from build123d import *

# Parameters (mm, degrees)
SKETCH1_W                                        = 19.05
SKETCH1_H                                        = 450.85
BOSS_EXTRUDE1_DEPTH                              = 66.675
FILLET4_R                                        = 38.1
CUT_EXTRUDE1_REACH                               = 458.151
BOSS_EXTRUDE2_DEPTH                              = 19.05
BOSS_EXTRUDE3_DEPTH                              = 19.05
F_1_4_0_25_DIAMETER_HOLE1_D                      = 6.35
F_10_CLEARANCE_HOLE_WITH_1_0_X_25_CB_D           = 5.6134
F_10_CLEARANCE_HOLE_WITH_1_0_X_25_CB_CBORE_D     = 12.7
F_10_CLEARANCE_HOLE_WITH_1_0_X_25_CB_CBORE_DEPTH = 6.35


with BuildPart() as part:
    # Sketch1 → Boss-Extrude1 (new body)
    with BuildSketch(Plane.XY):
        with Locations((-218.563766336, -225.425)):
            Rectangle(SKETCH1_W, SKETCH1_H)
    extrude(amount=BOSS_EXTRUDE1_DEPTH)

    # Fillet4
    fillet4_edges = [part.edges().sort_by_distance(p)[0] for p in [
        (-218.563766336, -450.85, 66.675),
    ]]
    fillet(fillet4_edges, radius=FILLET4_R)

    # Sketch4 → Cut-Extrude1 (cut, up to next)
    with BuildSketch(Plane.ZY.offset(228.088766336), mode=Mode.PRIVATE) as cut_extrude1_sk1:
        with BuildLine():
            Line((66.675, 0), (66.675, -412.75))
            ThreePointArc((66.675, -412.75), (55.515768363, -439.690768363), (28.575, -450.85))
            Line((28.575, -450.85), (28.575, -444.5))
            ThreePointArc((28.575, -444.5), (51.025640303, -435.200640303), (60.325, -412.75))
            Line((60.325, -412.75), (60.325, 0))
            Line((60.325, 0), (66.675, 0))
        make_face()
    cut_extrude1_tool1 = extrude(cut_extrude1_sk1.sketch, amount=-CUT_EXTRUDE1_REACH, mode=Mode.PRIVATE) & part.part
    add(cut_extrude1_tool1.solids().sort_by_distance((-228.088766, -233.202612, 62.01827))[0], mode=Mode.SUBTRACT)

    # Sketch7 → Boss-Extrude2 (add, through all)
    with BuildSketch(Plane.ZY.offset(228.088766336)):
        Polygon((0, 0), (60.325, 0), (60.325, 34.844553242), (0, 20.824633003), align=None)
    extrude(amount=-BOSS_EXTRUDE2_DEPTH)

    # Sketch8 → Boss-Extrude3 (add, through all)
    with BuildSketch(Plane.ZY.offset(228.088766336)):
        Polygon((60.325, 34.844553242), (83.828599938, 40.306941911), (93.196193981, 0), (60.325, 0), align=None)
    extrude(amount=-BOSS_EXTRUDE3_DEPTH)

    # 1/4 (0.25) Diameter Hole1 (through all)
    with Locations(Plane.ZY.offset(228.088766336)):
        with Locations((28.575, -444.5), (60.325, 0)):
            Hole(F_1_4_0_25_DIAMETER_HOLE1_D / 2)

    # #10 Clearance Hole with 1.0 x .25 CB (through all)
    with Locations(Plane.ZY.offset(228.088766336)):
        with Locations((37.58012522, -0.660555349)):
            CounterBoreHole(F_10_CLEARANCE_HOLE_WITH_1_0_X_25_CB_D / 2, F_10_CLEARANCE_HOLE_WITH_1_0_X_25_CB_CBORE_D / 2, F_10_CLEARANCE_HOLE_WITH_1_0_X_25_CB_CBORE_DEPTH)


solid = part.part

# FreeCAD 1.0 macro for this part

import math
import FreeCAD as App
import Part
import Sketcher
from FreeCAD import Vector
Q = App.Units.Quantity


def edges_at(feature, points):
    """Names of the edges that pass closest to the given points."""
    edges = feature.Shape.Edges
    near = lambda p: min(range(len(edges)), key=lambda i: edges[i].distToShape(Part.Vertex(*p))[0])
    return sorted({f"Edge{near(p) + 1}" for p in points})


def add_polygon(sketch, points):
    """Adds a closed chain of lines whose ends are joined by coincident constraints."""
    first, n = sketch.GeometryCount, len(points)
    for a, b in zip(points, points[1:] + points[:1]):
        sketch.addGeometry(Part.LineSegment(App.Vector(*a, 0), App.Vector(*b, 0)), False)
    for i in range(n):
        sketch.addConstraint(Sketcher.Constraint("Coincident", first + i, 2, first + (i + 1) % n, 1))

doc = App.newDocument("Part")
body = doc.addObject("PartDesign::Body", "Body")

# Sketch on XY plane
sketch1 = body.newObject("Sketcher::SketchObject", "Sketch")
sketch1.AttachmentSupport = (doc.getObject("XY_Plane"), [""])
sketch1.MapMode = "FlatFace"
add_polygon(sketch1, [(-228.088766, 0), (-228.088766, -450.85), (-209.038766, -450.85), (-209.038766, 0)])  # lines 0-3
sketch1.addConstraint([
    Sketcher.Constraint("Vertical", 0),
    Sketcher.Constraint("Horizontal", 1),
    Sketcher.Constraint("Vertical", 2),
    Sketcher.Constraint("Horizontal", 3),
    Sketcher.Constraint("PointOnObject", 2, 2, -1),
    Sketcher.Constraint("DistanceX", 1, 1, 1, 2, Q("0.75 in")),
    Sketcher.Constraint("DistanceY", 0, 2, 0, 1, Q("17.75 in")),
    Sketcher.Constraint("DistanceX", 0, 2, -1, 1, Q("228.088766 mm")),
])
pad1 = body.newObject("PartDesign::Pad", "Pad")
pad1.Profile = sketch1
pad1.Length = Q("2.625 in")
doc.recompute()

fillet = body.newObject("PartDesign::Fillet", "Fillet")
fillet.Base = (pad1, edges_at(pad1, [(-218.564, -450.85, 66.675)]))
fillet.Radius = Q("1.5 in")

# Sketch on YZ plane
sketch2 = body.newObject("Sketcher::SketchObject", "Sketch001")
sketch2.AttachmentSupport = (doc.getObject("YZ_Plane"), [""])
sketch2.MapMode = "FlatFace"
sketch2.AttachmentOffset = App.Placement(Vector(0, 0, -228.088766), App.Rotation())
sketch2.addGeometry([
    Part.LineSegment(Vector(-412.75, 66.675, 0), Vector(0, 66.675, 0)),  # 0
    Part.LineSegment(Vector(0, 66.675, 0), Vector(0, 60.325, 0)),  # 1
    Part.LineSegment(Vector(0, 60.325, 0), Vector(-412.75, 60.325, 0)),  # 2
    Part.ArcOfCircle(Part.Circle(Vector(-412.75, 28.575, 0), Vector(0, 0, 1), 31.75), math.radians(90), math.radians(180)),  # 3
    Part.LineSegment(Vector(-444.5, 28.575, 0), Vector(-450.85, 28.575, 0)),  # 4
    Part.ArcOfCircle(Part.Circle(Vector(-412.75, 28.575, 0), Vector(0, 0, 1), 38.1), math.radians(90), math.radians(180)),  # 5
], False)
sketch2.addConstraint([
    Sketcher.Constraint("Coincident", 0, 2, 1, 1),
    Sketcher.Constraint("Coincident", 1, 2, 2, 1),
    Sketcher.Constraint("Tangent", 2, 2, 3, 1),
    Sketcher.Constraint("Coincident", 3, 2, 4, 1),
    Sketcher.Constraint("Coincident", 4, 2, 5, 2),
    Sketcher.Constraint("Tangent", 5, 1, 0, 1),
    Sketcher.Constraint("Horizontal", 0),
    Sketcher.Constraint("Vertical", 1),
    Sketcher.Constraint("Horizontal", 2),
    Sketcher.Constraint("Horizontal", 4),
    Sketcher.Constraint("Coincident", 5, 3, 3, 3),
    Sketcher.Constraint("PointOnObject", 0, 2, -2),
    Sketcher.Constraint("Horizontal", 5, 3, 3, 2),
    Sketcher.Constraint("Radius", 5, Q("1.5 in")),
    Sketcher.Constraint("Radius", 3, Q("1.25 in")),
    Sketcher.Constraint("DistanceX", 0, 1, 0, 2, Q("16.25 in")),
    Sketcher.Constraint("DistanceY", -1, 1, 3, 3, Q("1.125 in")),
])
pocket1 = body.newObject("PartDesign::Pocket", "Pocket")
pocket1.Profile = sketch2
pocket1.Type = "UpToFirst"
pocket1.Reversed = True

# Sketch on YZ plane
sketch3 = body.newObject("Sketcher::SketchObject", "Sketch002")
sketch3.AttachmentSupport = (doc.getObject("YZ_Plane"), [""])
sketch3.MapMode = "FlatFace"
sketch3.AttachmentOffset = App.Placement(Vector(0, 0, -228.088766), App.Rotation())
add_polygon(sketch3, [(0, 0), (0, 60.325), (34.844553, 60.325), (20.824633, 0)])  # lines 0-3
sketch3.addConstraint([
    Sketcher.Constraint("Vertical", 0),
    Sketcher.Constraint("Horizontal", 1),
    Sketcher.Constraint("Horizontal", 3),
    Sketcher.Constraint("Coincident", 3, 2, -1, 1),
    Sketcher.Constraint("DistanceY", 0, 1, 0, 2, Q("2.375 in")),
    Sketcher.Constraint("DistanceX", 1, 1, 1, 2, Q("34.844553 mm")),
    Sketcher.Constraint("DistanceX", 3, 2, 3, 1, Q("20.824633 mm")),
])
pad2 = body.newObject("PartDesign::Pad", "Pad001")
pad2.Profile = sketch3
pad2.Length = Q("0.75 in")

# Sketch on YZ plane
sketch4 = body.newObject("Sketcher::SketchObject", "Sketch003")
sketch4.AttachmentSupport = (doc.getObject("YZ_Plane"), [""])
sketch4.MapMode = "FlatFace"
sketch4.AttachmentOffset = App.Placement(Vector(0, 0, -228.088766), App.Rotation())
add_polygon(sketch4, [(40.306942, 83.8286), (34.844553, 60.325), (0, 60.325), (0, 93.196194)])  # lines 0-3
sketch4.addConstraint([
    Sketcher.Constraint("Horizontal", 1),
    Sketcher.Constraint("Vertical", 2),
    Sketcher.Constraint("PointOnObject", 1, 2, -2),
    Sketcher.Constraint("Perpendicular", 0, 3),
    Sketcher.Constraint("Distance", 0, Q("0.95 in")),
    Sketcher.Constraint("DistanceY", -1, 1, 0, 2, Q("2.375 in")),
    Sketcher.Constraint("DistanceY", -1, 1, 3, 2, Q("83.8286 mm")),
    Sketcher.Constraint("Distance", 3, Q("41.381172 mm")),
])
pad3 = body.newObject("PartDesign::Pad", "Pad002")
pad3.Profile = sketch4
pad3.Length = Q("0.75 in")

# Sketch on YZ plane
sketch5 = body.newObject("Sketcher::SketchObject", "Sketch004")
sketch5.AttachmentSupport = (doc.getObject("YZ_Plane"), [""])
sketch5.MapMode = "FlatFace"
sketch5.AttachmentOffset = App.Placement(Vector(0, 0, -228.088766), App.Rotation())
sketch5.addGeometry([
    Part.Circle(Vector(-444.5, 28.575, 0), Vector(0, 0, 1), 3.175),
    Part.Circle(Vector(0, 60.325, 0), Vector(0, 0, 1), 3.175),
], False)
sketch5.addConstraint([
    Sketcher.Constraint("Equal", 0, 1),
    Sketcher.Constraint("PointOnObject", 1, 3, -2),
    Sketcher.Constraint("Diameter", 0, Q("0.25 in")),
    Sketcher.Constraint("DistanceX", 0, 3, -1, 1, Q("17.5 in")),
    Sketcher.Constraint("DistanceY", 0, 3, 1, 3, Q("1.25 in")),
    Sketcher.Constraint("DistanceY", -1, 1, 0, 3, Q("1.125 in")),
])
doc.recompute()
hole = body.newObject("PartDesign::Hole", "Hole")
hole.Profile = sketch5
hole.ThreadType = "None"
hole.Diameter = Q("0.25 in")
hole.DepthType = "ThroughAll"
hole.Reversed = True

# Sketch on YZ plane
sketch6 = body.newObject("Sketcher::SketchObject", "Sketch005")
sketch6.AttachmentSupport = (doc.getObject("YZ_Plane"), [""])
sketch6.MapMode = "FlatFace"
sketch6.AttachmentOffset = App.Placement(Vector(0, 0, -228.088766), App.Rotation())
sketch6.addGeometry(Part.Circle(Vector(-0.660555, 37.580125, 0), Vector(0, 0, 1), 2.8067), False)
sketch6.addConstraint([
    Sketcher.Constraint("Diameter", 0, Q("0.221 in")),
    Sketcher.Constraint("DistanceX", 0, 3, -1, 1, Q("0.660555 mm")),
    Sketcher.Constraint("DistanceY", -1, 1, 0, 3, Q("37.580125 mm")),
])
doc.recompute()
hole2 = body.newObject("PartDesign::Hole", "Hole001")
hole2.Profile = sketch6
hole2.ThreadType = "None"
hole2.Diameter = Q("0.221 in")
hole2.DepthType = "ThroughAll"
hole2.HoleCutType = "Counterbore"
hole2.HoleCutDiameter = Q("0.5 in")
hole2.HoleCutDepth = Q("0.25 in")
hole2.Reversed = True

doc.recompute()
